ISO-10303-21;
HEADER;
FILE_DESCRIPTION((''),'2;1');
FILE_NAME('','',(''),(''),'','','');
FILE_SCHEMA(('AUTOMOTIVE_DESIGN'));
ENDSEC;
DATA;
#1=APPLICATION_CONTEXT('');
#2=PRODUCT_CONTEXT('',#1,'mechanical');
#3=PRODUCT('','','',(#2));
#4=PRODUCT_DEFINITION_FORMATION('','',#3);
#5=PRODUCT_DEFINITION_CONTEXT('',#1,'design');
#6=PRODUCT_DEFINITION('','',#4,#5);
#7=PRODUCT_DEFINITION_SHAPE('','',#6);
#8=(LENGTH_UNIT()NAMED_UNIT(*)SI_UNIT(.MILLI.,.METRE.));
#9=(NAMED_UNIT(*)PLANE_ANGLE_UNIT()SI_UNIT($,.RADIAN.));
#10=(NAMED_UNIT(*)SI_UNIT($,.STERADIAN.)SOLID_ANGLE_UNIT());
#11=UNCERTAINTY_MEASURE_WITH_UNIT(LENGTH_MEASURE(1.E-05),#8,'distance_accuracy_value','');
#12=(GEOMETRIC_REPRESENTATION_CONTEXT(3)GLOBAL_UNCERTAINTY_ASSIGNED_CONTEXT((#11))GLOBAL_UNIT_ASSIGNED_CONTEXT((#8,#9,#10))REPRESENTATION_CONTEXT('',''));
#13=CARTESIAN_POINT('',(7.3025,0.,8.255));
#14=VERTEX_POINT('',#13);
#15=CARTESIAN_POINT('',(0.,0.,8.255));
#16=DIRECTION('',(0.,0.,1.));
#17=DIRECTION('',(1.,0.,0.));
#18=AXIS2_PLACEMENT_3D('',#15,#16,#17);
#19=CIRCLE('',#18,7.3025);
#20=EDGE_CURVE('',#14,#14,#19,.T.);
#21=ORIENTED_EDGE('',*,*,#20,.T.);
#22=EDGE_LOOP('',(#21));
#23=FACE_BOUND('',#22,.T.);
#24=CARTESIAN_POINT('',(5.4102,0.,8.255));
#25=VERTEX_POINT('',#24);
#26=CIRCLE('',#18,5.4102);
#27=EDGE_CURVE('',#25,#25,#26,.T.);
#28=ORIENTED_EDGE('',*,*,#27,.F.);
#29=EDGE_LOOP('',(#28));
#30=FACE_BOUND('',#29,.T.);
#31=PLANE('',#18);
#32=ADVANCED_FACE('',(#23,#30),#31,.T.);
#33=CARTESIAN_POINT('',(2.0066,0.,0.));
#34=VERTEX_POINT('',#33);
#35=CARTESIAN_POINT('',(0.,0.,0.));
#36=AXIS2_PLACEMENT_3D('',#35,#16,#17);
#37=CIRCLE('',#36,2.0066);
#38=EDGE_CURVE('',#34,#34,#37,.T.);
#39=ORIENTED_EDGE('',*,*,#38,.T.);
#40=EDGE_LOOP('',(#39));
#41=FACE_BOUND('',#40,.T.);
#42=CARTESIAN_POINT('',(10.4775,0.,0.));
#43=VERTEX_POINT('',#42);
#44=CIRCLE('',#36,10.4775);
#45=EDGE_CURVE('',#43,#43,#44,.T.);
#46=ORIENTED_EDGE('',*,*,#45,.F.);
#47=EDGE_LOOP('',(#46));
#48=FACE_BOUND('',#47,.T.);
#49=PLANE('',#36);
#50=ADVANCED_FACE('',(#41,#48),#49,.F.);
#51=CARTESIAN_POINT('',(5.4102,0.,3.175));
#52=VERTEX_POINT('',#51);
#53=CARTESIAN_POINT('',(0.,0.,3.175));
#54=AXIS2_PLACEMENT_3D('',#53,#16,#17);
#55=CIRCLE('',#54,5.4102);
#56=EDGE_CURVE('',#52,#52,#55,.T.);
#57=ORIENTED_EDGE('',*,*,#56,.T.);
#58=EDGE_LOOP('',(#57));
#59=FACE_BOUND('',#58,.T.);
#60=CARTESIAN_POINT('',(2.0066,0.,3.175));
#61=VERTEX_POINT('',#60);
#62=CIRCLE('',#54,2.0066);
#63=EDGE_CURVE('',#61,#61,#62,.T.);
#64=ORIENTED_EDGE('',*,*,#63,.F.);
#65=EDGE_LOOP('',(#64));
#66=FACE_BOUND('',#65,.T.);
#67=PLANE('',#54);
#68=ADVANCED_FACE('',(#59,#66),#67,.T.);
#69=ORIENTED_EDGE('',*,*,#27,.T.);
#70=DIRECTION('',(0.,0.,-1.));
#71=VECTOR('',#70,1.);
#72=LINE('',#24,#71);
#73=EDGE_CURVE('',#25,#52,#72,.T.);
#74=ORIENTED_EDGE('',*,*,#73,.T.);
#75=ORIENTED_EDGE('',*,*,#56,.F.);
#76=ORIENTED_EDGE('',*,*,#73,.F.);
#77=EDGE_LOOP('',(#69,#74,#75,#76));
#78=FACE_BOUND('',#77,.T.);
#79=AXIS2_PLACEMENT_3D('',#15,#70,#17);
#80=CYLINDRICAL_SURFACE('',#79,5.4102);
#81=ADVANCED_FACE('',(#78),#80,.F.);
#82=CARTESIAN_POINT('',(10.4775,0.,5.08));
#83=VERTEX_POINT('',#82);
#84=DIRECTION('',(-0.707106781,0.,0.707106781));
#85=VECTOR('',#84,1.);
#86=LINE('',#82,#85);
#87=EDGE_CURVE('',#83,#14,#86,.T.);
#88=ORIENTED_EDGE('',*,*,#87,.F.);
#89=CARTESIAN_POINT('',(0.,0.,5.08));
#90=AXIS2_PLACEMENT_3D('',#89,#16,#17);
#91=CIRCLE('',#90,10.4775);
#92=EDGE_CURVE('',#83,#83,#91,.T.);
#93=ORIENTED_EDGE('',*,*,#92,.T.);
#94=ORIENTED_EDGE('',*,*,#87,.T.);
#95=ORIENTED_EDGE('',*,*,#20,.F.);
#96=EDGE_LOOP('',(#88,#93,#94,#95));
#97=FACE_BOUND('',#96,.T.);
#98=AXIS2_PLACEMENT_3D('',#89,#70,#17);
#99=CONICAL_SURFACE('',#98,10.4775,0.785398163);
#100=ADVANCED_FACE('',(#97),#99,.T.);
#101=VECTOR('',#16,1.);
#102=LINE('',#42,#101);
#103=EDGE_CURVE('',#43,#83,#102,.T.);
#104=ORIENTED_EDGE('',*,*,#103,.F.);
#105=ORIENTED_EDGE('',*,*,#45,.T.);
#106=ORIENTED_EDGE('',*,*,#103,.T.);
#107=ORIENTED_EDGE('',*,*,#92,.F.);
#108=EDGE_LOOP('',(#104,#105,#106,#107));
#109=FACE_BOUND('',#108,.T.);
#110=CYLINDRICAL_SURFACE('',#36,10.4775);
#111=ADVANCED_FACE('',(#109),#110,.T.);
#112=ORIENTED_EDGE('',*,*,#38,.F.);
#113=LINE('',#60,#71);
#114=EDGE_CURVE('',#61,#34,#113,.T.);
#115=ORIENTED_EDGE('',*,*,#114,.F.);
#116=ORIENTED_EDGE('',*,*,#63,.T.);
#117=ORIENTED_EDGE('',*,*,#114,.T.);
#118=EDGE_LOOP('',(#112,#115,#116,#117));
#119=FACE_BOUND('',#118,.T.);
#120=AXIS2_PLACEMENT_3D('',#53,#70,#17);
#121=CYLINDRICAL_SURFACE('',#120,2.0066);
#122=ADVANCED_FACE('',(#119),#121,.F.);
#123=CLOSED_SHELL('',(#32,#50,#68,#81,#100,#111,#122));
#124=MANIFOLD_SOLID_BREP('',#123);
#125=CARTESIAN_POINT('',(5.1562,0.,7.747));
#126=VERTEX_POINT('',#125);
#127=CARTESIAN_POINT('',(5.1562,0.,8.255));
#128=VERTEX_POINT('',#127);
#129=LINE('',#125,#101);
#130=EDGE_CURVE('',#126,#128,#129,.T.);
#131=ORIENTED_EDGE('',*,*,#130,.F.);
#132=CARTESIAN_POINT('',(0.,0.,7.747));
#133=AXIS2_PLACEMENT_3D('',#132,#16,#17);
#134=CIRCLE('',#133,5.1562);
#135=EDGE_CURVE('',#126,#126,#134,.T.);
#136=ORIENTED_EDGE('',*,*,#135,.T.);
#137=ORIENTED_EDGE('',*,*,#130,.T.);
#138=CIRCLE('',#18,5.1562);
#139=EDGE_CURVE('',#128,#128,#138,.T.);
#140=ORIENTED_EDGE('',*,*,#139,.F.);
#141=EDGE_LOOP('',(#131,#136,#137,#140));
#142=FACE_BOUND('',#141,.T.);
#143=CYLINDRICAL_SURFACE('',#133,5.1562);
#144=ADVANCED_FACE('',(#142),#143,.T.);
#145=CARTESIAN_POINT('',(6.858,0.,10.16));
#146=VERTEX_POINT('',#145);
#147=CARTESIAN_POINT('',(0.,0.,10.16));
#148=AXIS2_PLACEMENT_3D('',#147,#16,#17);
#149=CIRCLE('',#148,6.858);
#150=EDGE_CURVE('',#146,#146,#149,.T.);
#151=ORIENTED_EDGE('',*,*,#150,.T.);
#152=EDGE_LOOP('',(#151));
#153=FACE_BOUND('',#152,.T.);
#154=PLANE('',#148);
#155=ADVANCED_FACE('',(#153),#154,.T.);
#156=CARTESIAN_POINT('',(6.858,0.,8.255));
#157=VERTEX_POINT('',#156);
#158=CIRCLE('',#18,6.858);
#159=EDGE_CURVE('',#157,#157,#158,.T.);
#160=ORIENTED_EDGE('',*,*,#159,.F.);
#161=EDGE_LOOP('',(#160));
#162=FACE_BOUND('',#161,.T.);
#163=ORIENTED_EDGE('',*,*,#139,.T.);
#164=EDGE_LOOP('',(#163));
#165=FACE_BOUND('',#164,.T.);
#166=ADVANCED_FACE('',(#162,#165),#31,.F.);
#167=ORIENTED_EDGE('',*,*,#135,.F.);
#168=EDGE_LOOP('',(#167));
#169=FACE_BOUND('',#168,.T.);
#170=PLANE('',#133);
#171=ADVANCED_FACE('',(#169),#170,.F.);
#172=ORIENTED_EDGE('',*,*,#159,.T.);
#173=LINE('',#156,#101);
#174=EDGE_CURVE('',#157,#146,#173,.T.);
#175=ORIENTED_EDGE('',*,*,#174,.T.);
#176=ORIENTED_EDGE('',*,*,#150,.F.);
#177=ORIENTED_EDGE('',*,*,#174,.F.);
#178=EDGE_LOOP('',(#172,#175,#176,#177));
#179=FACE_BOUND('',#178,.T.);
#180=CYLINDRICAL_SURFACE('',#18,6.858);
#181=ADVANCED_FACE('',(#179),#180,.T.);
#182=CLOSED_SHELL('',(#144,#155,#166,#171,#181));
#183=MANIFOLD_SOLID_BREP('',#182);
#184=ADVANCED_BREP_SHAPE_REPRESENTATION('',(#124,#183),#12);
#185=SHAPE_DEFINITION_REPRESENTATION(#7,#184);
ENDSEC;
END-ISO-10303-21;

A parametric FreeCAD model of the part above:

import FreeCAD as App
import Part
import Sketcher
Q = App.Units.Quantity


def edges_at(feature, points):
    """Names of the edges that pass closest to the given points."""
    edges = feature.Shape.Edges
    near = lambda p: min(range(len(edges)), key=lambda i: edges[i].distToShape(Part.Vertex(*p))[0])
    return sorted({f"Edge{near(p) + 1}" for p in points})


def add_polygon(sketch, points):
    """Adds a closed chain of lines whose ends are joined by coincident constraints."""
    first, n = sketch.GeometryCount, len(points)
    for a, b in zip(points, points[1:] + points[:1]):
        sketch.addGeometry(Part.LineSegment(App.Vector(*a, 0), App.Vector(*b, 0)), False)
    for i in range(n):
        sketch.addConstraint(Sketcher.Constraint("Coincident", first + i, 2, first + (i + 1) % n, 1))

doc = App.newDocument("Part")
params = doc.addObject("Spreadsheet::Sheet", "Params")
for row, (alias, value) in enumerate([
    ("sketch1_height", "0.2 in"),
    ("sketch1_width", "0.134 in"),
    ("sketch1_height2", "0.125 in"),
    ("revolution_angle", "360 deg"),
    ("chamfer_size", "0.125 in"),
    ("sketch2_width", "0.27 in"),
    ("sketch2_height", "0.02 in"),
    ("sketch2_width2", "0.203 in"),
    ("sketch2_height2", "0.095 in"),
    ("revolution2_angle", "360 deg"),
], start=1):
    params.set(f"A{row}", alias)
    params.set(f"B{row}", "=" + value)
    params.setAlias(f"B{row}", alias)

body = doc.addObject("PartDesign::Body", "Body")

sketch1 = body.newObject("Sketcher::SketchObject", "Sketch")
sketch1.AttachmentSupport = (doc.getObject("XZ_Plane"), [""])
sketch1.MapMode = "FlatFace"
add_polygon(sketch1, [(2, 3.2), (2, 0), (10.5, 0), (10.5, 8.3), (5.4, 8.3), (5.4, 3.2)])
sketch1.addConstraint([
    Sketcher.Constraint("Vertical", 0),
    Sketcher.Constraint("Horizontal", 1),
    Sketcher.Constraint("Vertical", 2),
    Sketcher.Constraint("Horizontal", 3),
    Sketcher.Constraint("Vertical", 4),
    Sketcher.Constraint("Horizontal", 5),
    Sketcher.Constraint("PointOnObject", 0, 2, -1),
    Sketcher.Constraint("DistanceY", 4, 2, 4, 1, Q("0.2 in")),
    Sketcher.Constraint("DistanceX", 5, 2, 5, 1, Q("0.134 in")),
    Sketcher.Constraint("DistanceY", 0, 2, 0, 1, Q("0.125 in")),
    Sketcher.Constraint("DistanceX", 1, 1, 1, 2, Q("0.3335 in")),
    Sketcher.Constraint("DistanceX", -1, 1, 0, 2, Q("0.079 in")),
])
sketch1.setExpression("Constraints[13]", "Params.sketch1_height")
sketch1.setExpression("Constraints[14]", "Params.sketch1_width")
sketch1.setExpression("Constraints[15]", "Params.sketch1_height2")
revolution = body.newObject("PartDesign::Revolution", "Revolution")
revolution.Profile = sketch1
revolution.ReferenceAxis = (sketch1, ["V_Axis"])
revolution.setExpression("Angle", "Params.revolution_angle")
doc.recompute()

chamfer = body.newObject("PartDesign::Chamfer", "Chamfer")
chamfer.Base = (revolution, edges_at(revolution, [(-10.477, 0, 8.255)]))
chamfer.setExpression("Size", "Params.chamfer_size")
body2 = doc.addObject("PartDesign::Body", "Body001")

sketch2 = body2.newObject("Sketcher::SketchObject", "Sketch001")
sketch2.AttachmentSupport = (doc.getObject("XZ_Plane001"), [""])
sketch2.MapMode = "FlatFace"
add_polygon(sketch2, [(0, 10.2), (0, 7.7), (5.2, 7.7), (5.2, 8.3), (6.9, 8.3), (6.9, 10.2)])
sketch2.addConstraint([
    Sketcher.Constraint("Vertical", 0),
    Sketcher.Constraint("Horizontal", 1),
    Sketcher.Constraint("Vertical", 2),
    Sketcher.Constraint("Horizontal", 3),
    Sketcher.Constraint("Vertical", 4),
    Sketcher.Constraint("Horizontal", 5),
    Sketcher.Constraint("PointOnObject", 0, 2, -2),
    Sketcher.Constraint("DistanceX", 5, 2, 5, 1, Q("0.27 in")),
    Sketcher.Constraint("DistanceY", 2, 1, 2, 2, Q("0.02 in")),
    Sketcher.Constraint("DistanceY", -1, 1, 4, 2, Q("0.4 in")),
    Sketcher.Constraint("DistanceX", 1, 1, 1, 2, Q("0.203 in")),
    Sketcher.Constraint("DistanceY", 0, 2, 0, 1, Q("0.095 in")),
])
sketch2.setExpression("Constraints[13]", "Params.sketch2_width")
sketch2.setExpression("Constraints[14]", "Params.sketch2_height")
sketch2.setExpression("Constraints[16]", "Params.sketch2_width2")
sketch2.setExpression("Constraints[17]", "Params.sketch2_height2")
revolution2 = body2.newObject("PartDesign::Revolution", "Revolution001")
revolution2.Profile = sketch2
revolution2.ReferenceAxis = (sketch2, ["V_Axis"])
revolution2.setExpression("Angle", "Params.revolution2_angle")

doc.recompute()
